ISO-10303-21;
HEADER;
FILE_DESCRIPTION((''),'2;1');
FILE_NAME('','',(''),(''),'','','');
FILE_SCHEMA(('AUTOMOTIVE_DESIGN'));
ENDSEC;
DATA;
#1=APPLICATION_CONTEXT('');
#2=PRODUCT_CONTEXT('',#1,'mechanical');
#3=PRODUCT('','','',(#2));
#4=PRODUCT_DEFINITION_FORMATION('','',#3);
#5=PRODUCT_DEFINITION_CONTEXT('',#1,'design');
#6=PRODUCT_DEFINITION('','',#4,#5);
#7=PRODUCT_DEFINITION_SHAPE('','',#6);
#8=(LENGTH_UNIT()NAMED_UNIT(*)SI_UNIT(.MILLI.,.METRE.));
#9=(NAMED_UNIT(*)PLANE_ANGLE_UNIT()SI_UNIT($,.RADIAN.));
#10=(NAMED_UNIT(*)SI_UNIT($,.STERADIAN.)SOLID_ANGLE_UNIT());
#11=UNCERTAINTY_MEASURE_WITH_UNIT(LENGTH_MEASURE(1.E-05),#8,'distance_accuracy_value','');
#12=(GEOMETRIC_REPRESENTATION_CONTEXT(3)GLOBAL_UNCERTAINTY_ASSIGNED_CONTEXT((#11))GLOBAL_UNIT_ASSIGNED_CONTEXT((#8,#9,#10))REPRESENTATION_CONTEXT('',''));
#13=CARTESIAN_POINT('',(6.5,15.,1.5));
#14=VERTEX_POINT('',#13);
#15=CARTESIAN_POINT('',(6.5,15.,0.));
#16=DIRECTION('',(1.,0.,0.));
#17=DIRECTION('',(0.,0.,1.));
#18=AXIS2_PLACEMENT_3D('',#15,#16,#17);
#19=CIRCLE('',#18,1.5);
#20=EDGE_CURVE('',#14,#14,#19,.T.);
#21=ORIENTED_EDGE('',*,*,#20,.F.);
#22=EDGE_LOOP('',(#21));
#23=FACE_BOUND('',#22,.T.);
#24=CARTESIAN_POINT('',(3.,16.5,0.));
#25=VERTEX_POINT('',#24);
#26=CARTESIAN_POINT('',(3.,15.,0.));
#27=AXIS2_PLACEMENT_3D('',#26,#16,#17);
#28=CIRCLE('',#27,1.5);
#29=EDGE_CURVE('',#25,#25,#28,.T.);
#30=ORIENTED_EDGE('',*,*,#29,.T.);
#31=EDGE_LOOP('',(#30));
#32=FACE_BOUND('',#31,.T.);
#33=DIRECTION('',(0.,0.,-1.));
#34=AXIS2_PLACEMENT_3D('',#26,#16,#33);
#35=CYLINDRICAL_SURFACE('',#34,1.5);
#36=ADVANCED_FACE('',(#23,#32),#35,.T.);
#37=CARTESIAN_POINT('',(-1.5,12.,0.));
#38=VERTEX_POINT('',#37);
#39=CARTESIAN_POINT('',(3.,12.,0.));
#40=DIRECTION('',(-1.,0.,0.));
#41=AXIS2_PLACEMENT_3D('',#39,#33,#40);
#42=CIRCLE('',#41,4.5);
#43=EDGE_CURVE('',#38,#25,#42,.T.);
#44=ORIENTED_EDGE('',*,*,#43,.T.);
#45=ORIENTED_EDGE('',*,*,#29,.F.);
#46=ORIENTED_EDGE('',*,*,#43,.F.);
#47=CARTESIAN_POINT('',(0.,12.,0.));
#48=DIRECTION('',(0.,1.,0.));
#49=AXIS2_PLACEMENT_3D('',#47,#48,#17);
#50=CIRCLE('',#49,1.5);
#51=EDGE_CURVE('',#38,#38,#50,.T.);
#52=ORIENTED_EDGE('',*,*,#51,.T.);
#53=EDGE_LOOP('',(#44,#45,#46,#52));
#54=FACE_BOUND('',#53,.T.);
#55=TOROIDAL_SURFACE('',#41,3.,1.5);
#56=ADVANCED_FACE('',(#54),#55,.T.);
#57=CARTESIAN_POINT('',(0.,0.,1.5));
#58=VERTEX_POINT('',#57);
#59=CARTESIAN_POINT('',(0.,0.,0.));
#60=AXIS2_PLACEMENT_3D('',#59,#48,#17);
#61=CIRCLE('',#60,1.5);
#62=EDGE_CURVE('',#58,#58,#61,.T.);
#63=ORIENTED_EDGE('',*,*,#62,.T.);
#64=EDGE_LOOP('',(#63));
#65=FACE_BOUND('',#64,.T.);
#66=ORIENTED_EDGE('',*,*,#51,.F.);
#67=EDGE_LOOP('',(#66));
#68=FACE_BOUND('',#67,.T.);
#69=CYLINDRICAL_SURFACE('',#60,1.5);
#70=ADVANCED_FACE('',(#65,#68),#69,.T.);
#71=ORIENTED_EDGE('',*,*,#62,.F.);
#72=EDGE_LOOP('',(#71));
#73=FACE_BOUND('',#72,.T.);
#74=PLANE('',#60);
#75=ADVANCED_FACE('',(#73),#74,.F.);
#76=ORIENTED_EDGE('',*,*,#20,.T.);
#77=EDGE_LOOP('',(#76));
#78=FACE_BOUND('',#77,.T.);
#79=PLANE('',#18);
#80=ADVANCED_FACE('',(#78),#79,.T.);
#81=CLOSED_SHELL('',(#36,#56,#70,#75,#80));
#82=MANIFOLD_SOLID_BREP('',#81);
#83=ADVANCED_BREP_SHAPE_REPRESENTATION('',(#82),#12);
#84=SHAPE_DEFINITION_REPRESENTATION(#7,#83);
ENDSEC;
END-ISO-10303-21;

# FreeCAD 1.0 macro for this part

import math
import FreeCAD as App
import Part
import Sketcher

doc = App.newDocument("Part")
body = doc.addObject("PartDesign::Body", "Body")

# Sketch on XZ plane
sketch1 = doc.addObject("Sketcher::SketchObject", "Sketch")
body.addObject(sketch1)
sketch1.AttachmentSupport = (doc.XZ_Plane, [""])
sketch1.MapMode = "FlatFace"
sketch1.addGeometry(Part.Circle(App.Vector(0, 0, 0), App.Vector(0, 0, 1), 1.5), False)
sketch1.addConstraint([
    Sketcher.Constraint("Coincident", 0, 3, -1, 1),
    Sketcher.Constraint("Diameter", 0, 3.0),
])

# Sketch on XY plane
sketch2 = doc.addObject("Sketcher::SketchObject", "Sketch001")
body.addObject(sketch2)
sketch2.AttachmentSupport = (doc.XY_Plane, [""])
sketch2.MapMode = "FlatFace"
sketch2.addGeometry([
    Part.LineSegment(App.Vector(0, 0, 0), App.Vector(0, 12, 0)),
    Part.ArcOfCircle(Part.Circle(App.Vector(3, 12, 0), App.Vector(0, 0, 1), 3), math.radians(90), math.radians(180)),
    Part.LineSegment(App.Vector(3, 15, 0), App.Vector(6.5, 15, 0)),
], False)
sketch2.addConstraint([
    Sketcher.Constraint("Tangent", 0, 2, 1, 2),
    Sketcher.Constraint("Tangent", 1, 1, 2, 1),
    Sketcher.Constraint("Vertical", 0),
    Sketcher.Constraint("Horizontal", 2),
    Sketcher.Constraint("Coincident", 0, 1, -1, 1),
    Sketcher.Constraint("Radius", 1, 3.0),
    Sketcher.Constraint("DistanceY", 0, 1, 0, 2, 12.0),
    Sketcher.Constraint("DistanceX", 2, 1, 2, 2, 3.5),
])
doc.recompute()

additivepipe = doc.addObject("PartDesign::AdditivePipe", "AdditivePipe")
body.addObject(additivepipe)
additivepipe.Profile = sketch1
additivepipe.Spine = (sketch2, ["Edge1", "Edge2", "Edge3"])

doc.recompute()
